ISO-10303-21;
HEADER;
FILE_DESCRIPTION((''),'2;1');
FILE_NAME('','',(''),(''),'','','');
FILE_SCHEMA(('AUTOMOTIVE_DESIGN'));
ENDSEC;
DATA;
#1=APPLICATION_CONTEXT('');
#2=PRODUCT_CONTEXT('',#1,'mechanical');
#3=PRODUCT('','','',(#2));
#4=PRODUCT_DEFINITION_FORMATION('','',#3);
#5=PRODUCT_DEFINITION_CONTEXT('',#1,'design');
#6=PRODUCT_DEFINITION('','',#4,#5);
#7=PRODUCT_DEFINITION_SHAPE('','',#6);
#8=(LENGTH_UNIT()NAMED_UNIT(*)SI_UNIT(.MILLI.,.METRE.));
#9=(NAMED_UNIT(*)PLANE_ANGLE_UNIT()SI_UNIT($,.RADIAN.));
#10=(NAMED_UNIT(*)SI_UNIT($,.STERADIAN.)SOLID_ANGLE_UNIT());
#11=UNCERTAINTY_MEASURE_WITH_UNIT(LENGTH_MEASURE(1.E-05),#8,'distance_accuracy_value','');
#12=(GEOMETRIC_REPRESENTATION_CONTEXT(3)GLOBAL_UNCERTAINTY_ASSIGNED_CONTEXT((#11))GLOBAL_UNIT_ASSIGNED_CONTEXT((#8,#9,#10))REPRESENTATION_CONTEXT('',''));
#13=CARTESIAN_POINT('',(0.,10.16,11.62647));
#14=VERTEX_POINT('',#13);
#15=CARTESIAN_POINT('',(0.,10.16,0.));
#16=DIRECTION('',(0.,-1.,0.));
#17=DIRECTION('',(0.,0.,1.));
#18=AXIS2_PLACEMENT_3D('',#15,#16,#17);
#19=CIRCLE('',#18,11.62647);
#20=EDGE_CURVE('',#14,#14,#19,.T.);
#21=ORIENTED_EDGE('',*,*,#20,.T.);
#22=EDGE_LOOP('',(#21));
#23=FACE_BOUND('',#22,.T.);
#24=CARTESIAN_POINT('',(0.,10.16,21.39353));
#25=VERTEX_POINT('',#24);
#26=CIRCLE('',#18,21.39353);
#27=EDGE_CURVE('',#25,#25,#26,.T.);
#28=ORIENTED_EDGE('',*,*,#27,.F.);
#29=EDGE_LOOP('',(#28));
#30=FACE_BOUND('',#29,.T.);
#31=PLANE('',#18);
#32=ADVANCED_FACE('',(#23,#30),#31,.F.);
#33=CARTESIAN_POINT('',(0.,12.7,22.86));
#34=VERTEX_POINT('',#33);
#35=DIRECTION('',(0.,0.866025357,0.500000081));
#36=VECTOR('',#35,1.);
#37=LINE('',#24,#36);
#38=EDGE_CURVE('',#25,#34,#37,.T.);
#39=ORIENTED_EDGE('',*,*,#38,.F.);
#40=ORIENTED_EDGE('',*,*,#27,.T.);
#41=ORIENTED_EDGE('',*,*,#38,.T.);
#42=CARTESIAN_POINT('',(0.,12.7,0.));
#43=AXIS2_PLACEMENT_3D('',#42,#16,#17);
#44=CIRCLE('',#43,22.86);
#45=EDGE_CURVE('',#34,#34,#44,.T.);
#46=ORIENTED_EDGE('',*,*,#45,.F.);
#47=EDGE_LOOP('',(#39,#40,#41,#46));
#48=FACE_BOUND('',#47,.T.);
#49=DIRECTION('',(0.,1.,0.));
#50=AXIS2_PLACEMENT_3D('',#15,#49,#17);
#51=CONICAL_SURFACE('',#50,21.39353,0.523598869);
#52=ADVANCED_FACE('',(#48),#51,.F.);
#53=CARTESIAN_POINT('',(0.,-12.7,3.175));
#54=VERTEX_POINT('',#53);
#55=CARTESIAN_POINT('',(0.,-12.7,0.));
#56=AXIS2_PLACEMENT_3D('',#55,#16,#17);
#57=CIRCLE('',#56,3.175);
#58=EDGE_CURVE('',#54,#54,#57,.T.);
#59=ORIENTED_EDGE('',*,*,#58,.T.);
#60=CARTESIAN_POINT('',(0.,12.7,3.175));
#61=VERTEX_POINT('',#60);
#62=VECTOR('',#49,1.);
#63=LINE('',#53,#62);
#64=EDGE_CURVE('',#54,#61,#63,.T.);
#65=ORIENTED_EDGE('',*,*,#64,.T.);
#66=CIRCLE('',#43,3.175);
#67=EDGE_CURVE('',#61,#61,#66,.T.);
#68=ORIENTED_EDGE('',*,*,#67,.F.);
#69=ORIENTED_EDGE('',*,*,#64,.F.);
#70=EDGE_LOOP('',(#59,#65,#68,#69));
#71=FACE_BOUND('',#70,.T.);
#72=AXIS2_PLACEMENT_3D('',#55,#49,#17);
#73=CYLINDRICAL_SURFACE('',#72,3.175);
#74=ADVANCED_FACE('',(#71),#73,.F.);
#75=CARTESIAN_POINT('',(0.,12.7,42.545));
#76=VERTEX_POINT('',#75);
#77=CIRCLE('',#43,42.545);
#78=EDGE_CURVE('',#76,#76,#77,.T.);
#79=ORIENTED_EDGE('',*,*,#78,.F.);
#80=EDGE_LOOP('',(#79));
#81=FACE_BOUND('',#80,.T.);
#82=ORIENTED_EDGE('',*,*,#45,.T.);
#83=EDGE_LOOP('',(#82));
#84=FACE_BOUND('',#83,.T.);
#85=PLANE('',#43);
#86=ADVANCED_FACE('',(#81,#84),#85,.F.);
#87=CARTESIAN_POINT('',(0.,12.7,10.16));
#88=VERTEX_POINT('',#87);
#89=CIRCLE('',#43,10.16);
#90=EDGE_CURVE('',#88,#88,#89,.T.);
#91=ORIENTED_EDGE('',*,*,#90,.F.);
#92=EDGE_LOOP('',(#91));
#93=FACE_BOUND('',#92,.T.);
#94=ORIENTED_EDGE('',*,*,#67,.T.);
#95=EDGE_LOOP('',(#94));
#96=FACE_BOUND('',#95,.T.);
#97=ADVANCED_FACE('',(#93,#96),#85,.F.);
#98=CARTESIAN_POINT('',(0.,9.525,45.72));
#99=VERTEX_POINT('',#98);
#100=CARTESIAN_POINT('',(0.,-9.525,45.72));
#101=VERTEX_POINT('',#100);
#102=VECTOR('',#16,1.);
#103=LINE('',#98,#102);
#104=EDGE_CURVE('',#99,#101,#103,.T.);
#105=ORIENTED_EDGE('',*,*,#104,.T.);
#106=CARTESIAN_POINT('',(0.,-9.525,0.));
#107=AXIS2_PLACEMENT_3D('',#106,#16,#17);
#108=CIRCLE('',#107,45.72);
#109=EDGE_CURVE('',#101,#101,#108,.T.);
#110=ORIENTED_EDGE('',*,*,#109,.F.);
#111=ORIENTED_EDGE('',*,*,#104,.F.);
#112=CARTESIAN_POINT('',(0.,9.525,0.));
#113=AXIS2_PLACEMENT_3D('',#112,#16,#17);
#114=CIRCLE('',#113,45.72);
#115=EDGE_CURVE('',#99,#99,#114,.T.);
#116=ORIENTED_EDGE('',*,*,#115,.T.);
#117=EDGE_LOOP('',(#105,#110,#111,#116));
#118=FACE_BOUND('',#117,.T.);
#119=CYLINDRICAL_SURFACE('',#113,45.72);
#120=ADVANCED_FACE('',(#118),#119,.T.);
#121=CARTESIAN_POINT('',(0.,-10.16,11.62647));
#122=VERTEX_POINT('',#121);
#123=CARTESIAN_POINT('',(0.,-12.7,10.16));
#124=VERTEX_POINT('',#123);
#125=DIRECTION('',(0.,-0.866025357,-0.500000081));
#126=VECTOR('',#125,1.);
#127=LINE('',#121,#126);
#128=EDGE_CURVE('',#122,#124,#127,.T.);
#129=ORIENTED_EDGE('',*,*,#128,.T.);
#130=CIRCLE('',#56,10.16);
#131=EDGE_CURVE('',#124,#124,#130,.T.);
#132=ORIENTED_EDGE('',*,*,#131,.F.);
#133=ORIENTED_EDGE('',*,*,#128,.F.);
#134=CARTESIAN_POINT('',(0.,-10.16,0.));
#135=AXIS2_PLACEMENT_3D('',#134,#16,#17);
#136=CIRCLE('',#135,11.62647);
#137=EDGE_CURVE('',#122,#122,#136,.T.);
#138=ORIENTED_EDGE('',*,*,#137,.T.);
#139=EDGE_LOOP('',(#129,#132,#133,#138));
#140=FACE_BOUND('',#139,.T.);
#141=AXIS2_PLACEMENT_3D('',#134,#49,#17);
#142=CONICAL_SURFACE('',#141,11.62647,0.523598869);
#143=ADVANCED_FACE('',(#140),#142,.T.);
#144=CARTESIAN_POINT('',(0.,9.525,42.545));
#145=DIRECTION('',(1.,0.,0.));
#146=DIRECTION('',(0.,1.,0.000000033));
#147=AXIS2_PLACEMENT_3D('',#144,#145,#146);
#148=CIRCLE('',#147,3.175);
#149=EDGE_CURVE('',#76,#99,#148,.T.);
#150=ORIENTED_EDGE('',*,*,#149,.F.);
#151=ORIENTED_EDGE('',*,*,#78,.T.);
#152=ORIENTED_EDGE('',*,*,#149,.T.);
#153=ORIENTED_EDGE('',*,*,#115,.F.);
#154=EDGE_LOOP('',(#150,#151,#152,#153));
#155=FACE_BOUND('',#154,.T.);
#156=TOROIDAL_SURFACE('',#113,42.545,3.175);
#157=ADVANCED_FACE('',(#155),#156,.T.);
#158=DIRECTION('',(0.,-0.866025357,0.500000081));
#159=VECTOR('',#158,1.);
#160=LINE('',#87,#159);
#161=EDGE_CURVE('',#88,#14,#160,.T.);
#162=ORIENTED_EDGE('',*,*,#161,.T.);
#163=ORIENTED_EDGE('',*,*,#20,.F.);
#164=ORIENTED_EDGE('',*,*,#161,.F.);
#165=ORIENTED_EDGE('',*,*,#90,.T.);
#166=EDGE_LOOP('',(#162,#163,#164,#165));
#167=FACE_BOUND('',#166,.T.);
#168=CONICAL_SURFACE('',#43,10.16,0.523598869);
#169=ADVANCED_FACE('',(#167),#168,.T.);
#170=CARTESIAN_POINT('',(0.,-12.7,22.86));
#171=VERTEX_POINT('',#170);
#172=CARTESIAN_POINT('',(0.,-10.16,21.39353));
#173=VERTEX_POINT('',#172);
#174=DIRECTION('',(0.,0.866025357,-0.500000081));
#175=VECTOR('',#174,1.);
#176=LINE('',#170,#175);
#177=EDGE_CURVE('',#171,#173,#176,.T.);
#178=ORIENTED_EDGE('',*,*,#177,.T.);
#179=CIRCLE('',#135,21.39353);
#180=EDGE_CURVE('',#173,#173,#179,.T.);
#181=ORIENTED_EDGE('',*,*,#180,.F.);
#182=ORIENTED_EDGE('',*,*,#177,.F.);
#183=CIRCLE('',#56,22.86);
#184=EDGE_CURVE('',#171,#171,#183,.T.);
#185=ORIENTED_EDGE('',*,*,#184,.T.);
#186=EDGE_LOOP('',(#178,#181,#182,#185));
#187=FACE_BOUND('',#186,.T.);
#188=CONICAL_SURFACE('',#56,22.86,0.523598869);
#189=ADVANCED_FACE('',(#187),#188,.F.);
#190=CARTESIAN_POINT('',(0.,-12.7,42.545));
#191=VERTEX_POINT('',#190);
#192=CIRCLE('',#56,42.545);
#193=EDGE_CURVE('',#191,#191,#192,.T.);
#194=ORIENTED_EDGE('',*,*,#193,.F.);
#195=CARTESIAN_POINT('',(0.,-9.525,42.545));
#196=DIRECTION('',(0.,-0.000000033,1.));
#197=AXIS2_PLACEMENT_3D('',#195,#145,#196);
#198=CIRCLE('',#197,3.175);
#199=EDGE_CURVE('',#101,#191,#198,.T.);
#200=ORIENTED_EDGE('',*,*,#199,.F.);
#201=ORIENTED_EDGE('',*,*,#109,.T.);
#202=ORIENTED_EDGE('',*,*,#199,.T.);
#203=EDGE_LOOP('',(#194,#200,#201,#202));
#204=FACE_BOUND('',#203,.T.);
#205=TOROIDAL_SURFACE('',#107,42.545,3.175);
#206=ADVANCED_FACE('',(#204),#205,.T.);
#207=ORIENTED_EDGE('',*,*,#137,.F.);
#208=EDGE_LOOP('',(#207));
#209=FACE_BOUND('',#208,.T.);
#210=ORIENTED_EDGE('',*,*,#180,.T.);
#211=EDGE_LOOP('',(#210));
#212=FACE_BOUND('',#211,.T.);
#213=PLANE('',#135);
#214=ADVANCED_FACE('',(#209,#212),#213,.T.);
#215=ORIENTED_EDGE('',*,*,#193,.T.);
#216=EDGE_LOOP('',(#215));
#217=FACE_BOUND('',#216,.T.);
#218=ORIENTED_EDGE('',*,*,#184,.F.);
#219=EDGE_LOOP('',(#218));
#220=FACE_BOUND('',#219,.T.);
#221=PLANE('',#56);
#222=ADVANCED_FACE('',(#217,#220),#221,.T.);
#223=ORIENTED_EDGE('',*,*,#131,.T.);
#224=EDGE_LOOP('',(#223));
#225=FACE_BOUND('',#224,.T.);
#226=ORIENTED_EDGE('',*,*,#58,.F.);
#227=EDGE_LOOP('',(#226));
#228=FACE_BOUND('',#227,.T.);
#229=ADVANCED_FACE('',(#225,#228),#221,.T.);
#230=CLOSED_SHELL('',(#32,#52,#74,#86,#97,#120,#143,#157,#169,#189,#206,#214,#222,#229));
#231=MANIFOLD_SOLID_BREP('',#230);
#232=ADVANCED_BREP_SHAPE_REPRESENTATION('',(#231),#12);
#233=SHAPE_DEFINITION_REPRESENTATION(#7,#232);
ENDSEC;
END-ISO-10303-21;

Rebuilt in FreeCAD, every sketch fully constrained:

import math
import FreeCAD as App
import Part
import Sketcher

V = App.Vector
Q = App.Units.Quantity

doc = App.newDocument("Part")
body = doc.addObject("PartDesign::Body", "Body")

# Sketch on YZ plane
sketch1 = body.newObject("Sketcher::SketchObject", "Sketch")
sketch1.AttachmentSupport = (doc.getObject("YZ_Plane"), [""])
sketch1.MapMode = "FlatFace"
sketch1.addGeometry([
    Part.LineSegment(V(-12.7, 3.175, 0), V(12.7, 3.175, 0)),  # 0
    Part.LineSegment(V(12.7, 3.175, 0), V(12.7, 10.16, 0)),  # 1
    Part.LineSegment(V(12.7, 10.16, 0), V(10.16, 11.62647, 0)),  # 2
    Part.LineSegment(V(10.16, 11.62647, 0), V(10.16, 21.39353, 0)),  # 3
    Part.LineSegment(V(10.16, 21.39353, 0), V(12.7, 22.86, 0)),  # 4
    Part.LineSegment(V(12.7, 22.86, 0), V(12.7, 42.545, 0)),  # 5
    Part.ArcOfCircle(Part.Circle(V(9.525, 42.545, 0), V(0, 0, 1), 3.175), math.radians(0.000002), math.radians(89.999998)),  # 6
    Part.LineSegment(V(9.525, 45.72, 0), V(-9.525, 45.72, 0)),  # 7
    Part.ArcOfCircle(Part.Circle(V(-9.525, 42.545, 0), V(0, 0, 1), 3.175), math.radians(90.000002), math.radians(179.999998)),  # 8
    Part.LineSegment(V(-12.7, 42.545, 0), V(-12.7, 22.86, 0)),  # 9
    Part.LineSegment(V(-12.7, 22.86, 0), V(-10.16, 21.39353, 0)),  # 10
    Part.LineSegment(V(-10.16, 21.39353, 0), V(-10.16, 11.62647, 0)),  # 11
    Part.LineSegment(V(-10.16, 11.62647, 0), V(-12.7, 10.16, 0)),  # 12
    Part.LineSegment(V(-12.7, 10.16, 0), V(-12.7, 3.175, 0)),  # 13
], False)
sketch1.addConstraint([
    Sketcher.Constraint("Coincident", 0, 2, 1, 1),
    Sketcher.Constraint("Coincident", 1, 2, 2, 1),
    Sketcher.Constraint("Coincident", 2, 2, 3, 1),
    Sketcher.Constraint("Coincident", 3, 2, 4, 1),
    Sketcher.Constraint("Coincident", 4, 2, 5, 1),
    Sketcher.Constraint("Tangent", 5, 2, 6, 1),
    Sketcher.Constraint("Tangent", 6, 2, 7, 1),
    Sketcher.Constraint("Tangent", 7, 2, 8, 1),
    Sketcher.Constraint("Tangent", 8, 2, 9, 1),
    Sketcher.Constraint("Coincident", 9, 2, 10, 1),
    Sketcher.Constraint("Coincident", 10, 2, 11, 1),
    Sketcher.Constraint("Coincident", 11, 2, 12, 1),
    Sketcher.Constraint("Coincident", 12, 2, 13, 1),
    Sketcher.Constraint("Coincident", 13, 2, 0, 1),
    Sketcher.Constraint("Horizontal", 0),
    Sketcher.Constraint("Vertical", 1),
    Sketcher.Constraint("Vertical", 3),
    Sketcher.Constraint("Vertical", 5),
    Sketcher.Constraint("Horizontal", 7),
    Sketcher.Constraint("Vertical", 9),
    Sketcher.Constraint("Vertical", 11),
    Sketcher.Constraint("Vertical", 13),
    Sketcher.Constraint("Equal", 6, 8),
    Sketcher.Constraint("Symmetric", 4, 2, 9, 2, -2),
    Sketcher.Constraint("Symmetric", 3, 2, 10, 2, -2),
    Sketcher.Constraint("Symmetric", 1, 2, 12, 2, -2),
    Sketcher.Constraint("Parallel", 2, 10),
    Sketcher.Constraint("Parallel", 4, 12),
    Sketcher.Constraint("Vertical", 1, 2, 4, 2),
    Sketcher.Constraint("DistanceX", 0, 1, 0, 2, Q("1 in")),
    Sketcher.Constraint("Angle", 2, Q("149.999995 deg")),
    Sketcher.Constraint("Radius", 6, Q("0.125 in")),
    Sketcher.Constraint("DistanceY", -1, 1, 1, 2, Q("0.4 in")),
    Sketcher.Constraint("DistanceX", -1, 1, 2, 2, Q("0.4 in")),
    Sketcher.Constraint("DistanceY", -1, 1, 4, 2, Q("0.9 in")),
    Sketcher.Constraint("DistanceY", -1, 1, 6, 2, Q("1.8 in")),
    Sketcher.Constraint("DistanceY", 1, 1, 1, 2, Q("0.275 in")),
])
revolution = body.newObject("PartDesign::Revolution", "Revolution")
revolution.Profile = sketch1
revolution.ReferenceAxis = (sketch1, ["H_Axis"])
revolution.Angle = 360

doc.recompute()
